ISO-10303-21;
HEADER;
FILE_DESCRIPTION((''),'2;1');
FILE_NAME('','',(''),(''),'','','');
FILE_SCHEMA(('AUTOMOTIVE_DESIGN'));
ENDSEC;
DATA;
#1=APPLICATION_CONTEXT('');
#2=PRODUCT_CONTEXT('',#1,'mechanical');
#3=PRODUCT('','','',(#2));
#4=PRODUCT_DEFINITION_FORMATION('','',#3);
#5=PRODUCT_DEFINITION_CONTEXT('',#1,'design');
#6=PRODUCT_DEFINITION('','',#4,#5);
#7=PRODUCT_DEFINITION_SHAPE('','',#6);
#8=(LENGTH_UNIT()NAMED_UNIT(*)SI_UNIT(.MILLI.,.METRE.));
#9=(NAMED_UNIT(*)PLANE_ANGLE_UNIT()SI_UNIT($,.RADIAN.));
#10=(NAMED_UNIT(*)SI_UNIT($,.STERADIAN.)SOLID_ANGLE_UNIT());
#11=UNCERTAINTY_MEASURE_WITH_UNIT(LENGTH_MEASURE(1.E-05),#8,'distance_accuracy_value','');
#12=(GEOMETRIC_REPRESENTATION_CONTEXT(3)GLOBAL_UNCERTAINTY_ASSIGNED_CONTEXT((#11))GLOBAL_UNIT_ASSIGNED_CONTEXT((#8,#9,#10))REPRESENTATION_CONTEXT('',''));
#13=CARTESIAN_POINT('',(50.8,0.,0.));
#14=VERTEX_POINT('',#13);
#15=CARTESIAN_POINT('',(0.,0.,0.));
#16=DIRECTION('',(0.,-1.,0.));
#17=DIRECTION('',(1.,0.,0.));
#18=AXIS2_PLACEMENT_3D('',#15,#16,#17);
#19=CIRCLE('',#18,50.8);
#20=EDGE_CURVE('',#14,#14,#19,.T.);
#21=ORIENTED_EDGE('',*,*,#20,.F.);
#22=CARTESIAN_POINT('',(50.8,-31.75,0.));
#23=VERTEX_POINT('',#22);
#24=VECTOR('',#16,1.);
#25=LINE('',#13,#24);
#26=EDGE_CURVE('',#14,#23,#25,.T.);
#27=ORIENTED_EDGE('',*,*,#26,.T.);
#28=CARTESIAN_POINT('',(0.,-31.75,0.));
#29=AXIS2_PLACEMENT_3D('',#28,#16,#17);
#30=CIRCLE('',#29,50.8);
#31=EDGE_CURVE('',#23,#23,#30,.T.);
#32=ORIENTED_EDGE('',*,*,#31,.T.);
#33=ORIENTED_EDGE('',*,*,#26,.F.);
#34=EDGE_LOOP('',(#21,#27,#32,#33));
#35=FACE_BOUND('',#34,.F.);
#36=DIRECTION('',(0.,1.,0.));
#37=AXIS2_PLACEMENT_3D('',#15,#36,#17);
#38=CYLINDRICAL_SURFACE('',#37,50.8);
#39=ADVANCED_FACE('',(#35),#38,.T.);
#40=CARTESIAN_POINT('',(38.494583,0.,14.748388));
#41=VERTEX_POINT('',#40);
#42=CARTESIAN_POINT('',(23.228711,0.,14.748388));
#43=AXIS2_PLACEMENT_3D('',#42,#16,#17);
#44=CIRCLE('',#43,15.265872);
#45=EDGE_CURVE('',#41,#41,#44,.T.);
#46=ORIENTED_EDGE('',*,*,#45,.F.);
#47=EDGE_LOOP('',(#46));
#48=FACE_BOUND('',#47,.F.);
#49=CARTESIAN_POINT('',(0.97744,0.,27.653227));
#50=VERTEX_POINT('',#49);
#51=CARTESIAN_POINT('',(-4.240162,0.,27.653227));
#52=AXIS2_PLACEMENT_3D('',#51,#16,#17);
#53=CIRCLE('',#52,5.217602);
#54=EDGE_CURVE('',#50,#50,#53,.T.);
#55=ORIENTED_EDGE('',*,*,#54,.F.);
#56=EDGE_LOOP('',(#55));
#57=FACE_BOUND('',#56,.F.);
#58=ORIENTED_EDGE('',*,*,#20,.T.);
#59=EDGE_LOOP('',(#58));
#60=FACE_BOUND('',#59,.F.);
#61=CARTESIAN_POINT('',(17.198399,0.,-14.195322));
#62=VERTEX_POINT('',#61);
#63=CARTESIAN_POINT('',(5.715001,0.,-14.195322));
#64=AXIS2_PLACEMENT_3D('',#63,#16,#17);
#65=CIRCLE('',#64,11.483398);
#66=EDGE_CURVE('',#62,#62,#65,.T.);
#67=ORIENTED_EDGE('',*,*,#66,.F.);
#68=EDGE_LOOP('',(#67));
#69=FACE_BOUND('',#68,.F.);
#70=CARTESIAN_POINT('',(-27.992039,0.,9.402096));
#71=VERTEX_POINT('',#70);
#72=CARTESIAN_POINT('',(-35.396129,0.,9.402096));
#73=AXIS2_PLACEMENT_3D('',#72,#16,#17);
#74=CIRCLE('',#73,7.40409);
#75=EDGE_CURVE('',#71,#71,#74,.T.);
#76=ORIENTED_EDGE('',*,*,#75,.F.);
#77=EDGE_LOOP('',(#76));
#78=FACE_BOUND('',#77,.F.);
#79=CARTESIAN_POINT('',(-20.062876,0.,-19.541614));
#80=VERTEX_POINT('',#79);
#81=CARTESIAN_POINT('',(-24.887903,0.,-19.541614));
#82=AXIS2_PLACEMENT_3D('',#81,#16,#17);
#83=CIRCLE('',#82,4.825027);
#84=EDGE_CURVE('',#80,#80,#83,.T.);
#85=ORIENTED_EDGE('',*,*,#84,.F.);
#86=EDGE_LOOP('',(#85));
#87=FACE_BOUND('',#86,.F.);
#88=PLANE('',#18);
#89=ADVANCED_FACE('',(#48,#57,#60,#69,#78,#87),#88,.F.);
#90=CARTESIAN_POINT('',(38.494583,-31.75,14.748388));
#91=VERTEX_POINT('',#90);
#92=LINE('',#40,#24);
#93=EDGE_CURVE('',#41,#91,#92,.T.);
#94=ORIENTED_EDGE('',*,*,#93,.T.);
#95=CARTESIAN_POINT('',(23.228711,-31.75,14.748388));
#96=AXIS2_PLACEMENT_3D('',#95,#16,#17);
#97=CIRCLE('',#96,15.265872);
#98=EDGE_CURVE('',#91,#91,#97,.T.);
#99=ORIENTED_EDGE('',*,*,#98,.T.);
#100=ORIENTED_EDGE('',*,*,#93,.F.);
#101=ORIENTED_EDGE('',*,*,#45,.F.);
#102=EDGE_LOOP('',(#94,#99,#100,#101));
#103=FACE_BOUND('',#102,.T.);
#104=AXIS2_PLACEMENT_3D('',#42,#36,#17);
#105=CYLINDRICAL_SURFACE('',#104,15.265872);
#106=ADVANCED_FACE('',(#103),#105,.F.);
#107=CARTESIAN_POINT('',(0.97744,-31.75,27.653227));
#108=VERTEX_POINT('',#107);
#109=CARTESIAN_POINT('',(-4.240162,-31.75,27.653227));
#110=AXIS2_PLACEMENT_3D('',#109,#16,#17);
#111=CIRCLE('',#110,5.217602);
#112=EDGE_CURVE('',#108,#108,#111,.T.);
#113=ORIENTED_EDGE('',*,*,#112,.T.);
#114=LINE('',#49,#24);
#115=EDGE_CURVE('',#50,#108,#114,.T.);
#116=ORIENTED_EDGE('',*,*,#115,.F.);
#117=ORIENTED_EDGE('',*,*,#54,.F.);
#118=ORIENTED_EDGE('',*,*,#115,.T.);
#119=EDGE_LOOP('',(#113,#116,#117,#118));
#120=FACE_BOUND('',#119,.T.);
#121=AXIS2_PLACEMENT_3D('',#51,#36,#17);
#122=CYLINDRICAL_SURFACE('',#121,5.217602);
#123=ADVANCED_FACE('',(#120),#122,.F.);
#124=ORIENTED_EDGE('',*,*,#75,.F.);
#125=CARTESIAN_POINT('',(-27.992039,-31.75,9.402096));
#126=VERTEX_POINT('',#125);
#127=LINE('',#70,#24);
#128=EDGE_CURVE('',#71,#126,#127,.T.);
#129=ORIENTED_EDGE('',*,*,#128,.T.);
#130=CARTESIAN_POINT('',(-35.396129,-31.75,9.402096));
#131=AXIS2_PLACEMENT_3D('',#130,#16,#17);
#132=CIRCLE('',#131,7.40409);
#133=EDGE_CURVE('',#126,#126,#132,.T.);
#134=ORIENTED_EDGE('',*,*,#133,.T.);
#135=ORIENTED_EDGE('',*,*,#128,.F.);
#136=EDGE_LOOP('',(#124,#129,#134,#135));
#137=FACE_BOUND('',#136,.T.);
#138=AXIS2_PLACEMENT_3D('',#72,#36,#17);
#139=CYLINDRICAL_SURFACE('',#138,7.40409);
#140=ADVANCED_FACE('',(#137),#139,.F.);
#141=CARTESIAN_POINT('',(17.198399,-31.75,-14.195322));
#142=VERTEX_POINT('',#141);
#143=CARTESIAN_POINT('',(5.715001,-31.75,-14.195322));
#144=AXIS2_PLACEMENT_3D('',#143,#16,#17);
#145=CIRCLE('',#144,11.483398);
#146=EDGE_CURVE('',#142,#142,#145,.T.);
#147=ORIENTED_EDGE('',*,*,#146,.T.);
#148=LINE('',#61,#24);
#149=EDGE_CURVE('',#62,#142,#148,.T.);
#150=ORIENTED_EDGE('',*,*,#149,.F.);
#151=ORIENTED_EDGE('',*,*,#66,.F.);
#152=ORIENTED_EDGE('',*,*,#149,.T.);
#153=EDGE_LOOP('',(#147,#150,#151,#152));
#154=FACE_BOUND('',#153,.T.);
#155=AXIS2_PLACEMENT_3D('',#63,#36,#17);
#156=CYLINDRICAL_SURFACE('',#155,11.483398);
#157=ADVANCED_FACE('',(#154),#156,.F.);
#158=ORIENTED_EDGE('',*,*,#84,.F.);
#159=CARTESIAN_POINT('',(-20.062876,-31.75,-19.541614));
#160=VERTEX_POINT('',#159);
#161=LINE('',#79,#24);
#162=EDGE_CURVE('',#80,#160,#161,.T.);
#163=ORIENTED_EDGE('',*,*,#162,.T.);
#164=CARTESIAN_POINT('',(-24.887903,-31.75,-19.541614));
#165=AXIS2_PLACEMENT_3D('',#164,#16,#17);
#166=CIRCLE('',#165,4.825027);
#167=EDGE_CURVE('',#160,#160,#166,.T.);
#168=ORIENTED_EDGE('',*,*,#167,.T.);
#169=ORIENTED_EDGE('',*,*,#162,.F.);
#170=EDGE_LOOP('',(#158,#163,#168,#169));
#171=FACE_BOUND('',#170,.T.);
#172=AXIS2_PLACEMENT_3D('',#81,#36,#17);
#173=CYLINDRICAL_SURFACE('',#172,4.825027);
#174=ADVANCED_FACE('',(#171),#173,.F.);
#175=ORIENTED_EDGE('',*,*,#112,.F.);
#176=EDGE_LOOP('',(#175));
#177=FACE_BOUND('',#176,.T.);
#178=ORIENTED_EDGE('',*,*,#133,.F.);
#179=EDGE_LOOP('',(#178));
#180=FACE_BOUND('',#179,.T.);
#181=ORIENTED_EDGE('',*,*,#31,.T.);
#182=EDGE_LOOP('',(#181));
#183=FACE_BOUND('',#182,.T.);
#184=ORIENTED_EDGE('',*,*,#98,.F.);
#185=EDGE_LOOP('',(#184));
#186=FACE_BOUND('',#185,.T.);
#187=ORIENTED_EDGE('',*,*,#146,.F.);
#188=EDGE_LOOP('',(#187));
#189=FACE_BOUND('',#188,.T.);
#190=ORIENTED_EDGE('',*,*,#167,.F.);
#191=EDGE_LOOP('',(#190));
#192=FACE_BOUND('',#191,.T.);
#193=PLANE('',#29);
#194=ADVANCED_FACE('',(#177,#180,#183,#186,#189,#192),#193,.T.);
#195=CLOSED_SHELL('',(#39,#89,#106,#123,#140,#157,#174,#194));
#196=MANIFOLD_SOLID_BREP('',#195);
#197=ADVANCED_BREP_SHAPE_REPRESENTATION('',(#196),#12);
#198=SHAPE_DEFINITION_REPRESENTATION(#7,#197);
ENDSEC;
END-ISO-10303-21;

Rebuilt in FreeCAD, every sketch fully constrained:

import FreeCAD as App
import Part
import Sketcher

V = App.Vector
Q = App.Units.Quantity

doc = App.newDocument("Part")
params = doc.addObject("Spreadsheet::Sheet", "Params")
for row, (alias, value) in enumerate([
    ("sketch1_diameter", "4 in"),
    ("pad1_length", "1.25 in"),
], start=1):
    params.set(f"A{row}", alias)
    params.set(f"B{row}", "=" + value)
    params.setAlias(f"B{row}", alias)

body = doc.addObject("PartDesign::Body", "Body")

# Sketch on XZ plane
sketch1 = body.newObject("Sketcher::SketchObject", "Sketch")
sketch1.AttachmentSupport = (doc.getObject("XZ_Plane"), [""])
sketch1.MapMode = "FlatFace"
sketch1.addGeometry(Part.Circle(V(0, 0, 0), V(0, 0, 1), 50.8), False)
sketch1.addGeometry(Part.Circle(V(-24.9, -19.5, 0), V(0, 0, 1), 4.8), False)
sketch1.addGeometry(Part.Circle(V(5.7, -14.2, 0), V(0, 0, 1), 11.5), False)
sketch1.addGeometry(Part.Circle(V(-35.4, 9.4, 0), V(0, 0, 1), 7.4), False)
sketch1.addGeometry(Part.Circle(V(-4.2, 27.7, 0), V(0, 0, 1), 5.2), False)
sketch1.addGeometry(Part.Circle(V(23.2, 14.7, 0), V(0, 0, 1), 15.3), False)
sketch1.addConstraint(Sketcher.Constraint("Coincident", 0, 3, -1, 1))
sketch1.addConstraint(Sketcher.Constraint("Diameter", 0, Q("4 in")))
sketch1.addConstraint(Sketcher.Constraint("DistanceY", 1, 3, 5, 3, Q("1.3500001 in")))
sketch1.addConstraint(Sketcher.Constraint("Diameter", 3, Q("14.80818 mm")))
sketch1.addConstraint(Sketcher.Constraint("DistanceX", -1, 1, 2, 3, Q("0.225 in")))
sketch1.addConstraint(Sketcher.Constraint("Diameter", 1, Q("9.650054 mm")))
sketch1.addConstraint(Sketcher.Constraint("Diameter", 2, Q("22.966796 mm")))
sketch1.addConstraint(Sketcher.Constraint("Diameter", 4, Q("10.435204 mm")))
sketch1.addConstraint(Sketcher.Constraint("Diameter", 5, Q("30.531744 mm")))
sketch1.addConstraint(Sketcher.Constraint("DistanceX", 3, 3, -1, 1, Q("35.396129 mm")))
sketch1.addConstraint(Sketcher.Constraint("DistanceX", 4, 3, -1, 1, Q("4.240162 mm")))
sketch1.addConstraint(Sketcher.Constraint("DistanceX", -1, 1, 5, 3, Q("23.228711 mm")))
sketch1.addConstraint(Sketcher.Constraint("DistanceY", 1, 3, 2, 3, Q("5.346292 mm")))
sketch1.addConstraint(Sketcher.Constraint("DistanceY", 1, 3, 3, 3, Q("28.94371 mm")))
sketch1.addConstraint(Sketcher.Constraint("DistanceY", 3, 3, 4, 3, Q("18.251131 mm")))
sketch1.addConstraint(Sketcher.Constraint("DistanceX", 1, 3, 4, 3, Q("20.647741 mm")))
sketch1.addConstraint(Sketcher.Constraint("DistanceY", 1, 3, -1, 1, Q("19.541614 mm")))
sketch1.setExpression("Constraints[1]", "Params.sketch1_diameter")
pad1 = body.newObject("PartDesign::Pad", "Pad")
pad1.Profile = sketch1
pad1.setExpression("Length", "Params.pad1_length")

doc.recompute()
